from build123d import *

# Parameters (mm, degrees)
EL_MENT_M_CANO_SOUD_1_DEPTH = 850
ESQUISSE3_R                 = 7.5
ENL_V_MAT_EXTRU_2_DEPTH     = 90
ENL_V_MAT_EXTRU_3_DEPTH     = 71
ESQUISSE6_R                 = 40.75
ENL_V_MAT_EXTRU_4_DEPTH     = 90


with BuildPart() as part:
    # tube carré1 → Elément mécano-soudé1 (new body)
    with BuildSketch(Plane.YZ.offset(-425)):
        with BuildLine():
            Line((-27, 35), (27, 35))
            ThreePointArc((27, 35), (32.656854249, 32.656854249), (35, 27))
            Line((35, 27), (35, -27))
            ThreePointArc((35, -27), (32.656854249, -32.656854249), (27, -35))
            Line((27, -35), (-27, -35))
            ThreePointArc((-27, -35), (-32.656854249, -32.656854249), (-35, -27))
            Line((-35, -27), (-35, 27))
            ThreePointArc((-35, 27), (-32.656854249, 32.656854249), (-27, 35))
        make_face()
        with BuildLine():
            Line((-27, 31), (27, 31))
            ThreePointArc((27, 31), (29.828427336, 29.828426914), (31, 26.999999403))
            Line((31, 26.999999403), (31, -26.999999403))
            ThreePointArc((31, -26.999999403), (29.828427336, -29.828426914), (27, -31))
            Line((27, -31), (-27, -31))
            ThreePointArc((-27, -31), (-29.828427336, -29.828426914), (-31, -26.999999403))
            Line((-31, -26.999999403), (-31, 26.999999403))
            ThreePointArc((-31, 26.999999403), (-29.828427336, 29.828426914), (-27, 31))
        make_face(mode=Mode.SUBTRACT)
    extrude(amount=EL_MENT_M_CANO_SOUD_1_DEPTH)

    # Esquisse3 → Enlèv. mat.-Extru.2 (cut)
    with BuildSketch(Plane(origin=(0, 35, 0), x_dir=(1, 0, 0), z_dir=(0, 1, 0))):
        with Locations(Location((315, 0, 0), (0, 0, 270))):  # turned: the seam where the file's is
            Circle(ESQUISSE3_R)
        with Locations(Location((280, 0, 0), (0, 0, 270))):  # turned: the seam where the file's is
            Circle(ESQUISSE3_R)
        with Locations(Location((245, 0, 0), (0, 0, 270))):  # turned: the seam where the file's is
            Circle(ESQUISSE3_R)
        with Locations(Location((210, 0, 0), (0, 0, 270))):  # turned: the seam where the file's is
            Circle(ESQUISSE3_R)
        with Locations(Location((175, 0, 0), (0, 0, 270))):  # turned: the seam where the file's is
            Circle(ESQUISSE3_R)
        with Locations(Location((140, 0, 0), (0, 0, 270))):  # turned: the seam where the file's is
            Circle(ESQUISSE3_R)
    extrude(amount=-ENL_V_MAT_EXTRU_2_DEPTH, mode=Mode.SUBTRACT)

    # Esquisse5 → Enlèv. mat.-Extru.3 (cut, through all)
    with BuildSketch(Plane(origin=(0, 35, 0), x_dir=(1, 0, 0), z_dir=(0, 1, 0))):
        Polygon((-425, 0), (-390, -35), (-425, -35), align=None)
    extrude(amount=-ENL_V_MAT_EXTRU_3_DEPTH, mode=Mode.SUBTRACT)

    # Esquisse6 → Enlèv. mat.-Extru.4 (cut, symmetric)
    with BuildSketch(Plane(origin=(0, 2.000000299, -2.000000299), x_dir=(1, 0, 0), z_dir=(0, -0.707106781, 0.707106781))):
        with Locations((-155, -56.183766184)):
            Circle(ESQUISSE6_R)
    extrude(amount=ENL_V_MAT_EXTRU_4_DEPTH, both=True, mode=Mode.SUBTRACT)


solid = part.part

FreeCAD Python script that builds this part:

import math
import FreeCAD as App
import Part
import Sketcher
Q = App.Units.Quantity

doc = App.newDocument("Part")
params = doc.addObject("Spreadsheet::Sheet", "Params")
for row, (alias, value) in enumerate([
    ("sketch1_radius", "8 mm"),
    ("sketch1_radius2", "4 mm"),
    ("sketch1_width", "54 mm"),
    ("pad1_length", "850 mm"),
    ("sketch2_diameter", "15 mm"),
    ("pocket1_length", "90 mm"),
    ("sketch3_width", "35 mm"),
    ("sketch4_diameter", "81.5 mm"),
    ("pocket3_length", "180 mm"),
], start=1):
    params.set(f"A{row}", alias)
    params.set(f"B{row}", "=" + value)
    params.setAlias(f"B{row}", alias)

body = doc.addObject("PartDesign::Body", "Body")

sketch1 = body.newObject("Sketcher::SketchObject", "Sketch")
sketch1.AttachmentSupport = (doc.getObject("YZ_Plane"), [""])
sketch1.MapMode = "FlatFace"
sketch1.AttachmentOffset = App.Placement(App.Vector(0, 0, -425), App.Rotation())
sketch1.addGeometry([
    Part.LineSegment(App.Vector(27, 35, 0), App.Vector(-27, 35, 0)),
    Part.ArcOfCircle(Part.Circle(App.Vector(-27, 27, 0), App.Vector(0, 0, 1), 8), math.radians(90), math.radians(180)),
    Part.LineSegment(App.Vector(-35, 27, 0), App.Vector(-35, -27, 0)),
    Part.ArcOfCircle(Part.Circle(App.Vector(-27, -27, 0), App.Vector(0, 0, 1), 8), math.radians(-180), math.radians(-90)),
    Part.LineSegment(App.Vector(-27, -35, 0), App.Vector(27, -35, 0)),
    Part.ArcOfCircle(Part.Circle(App.Vector(27, -27, 0), App.Vector(0, 0, 1), 8), math.radians(-90), math.radians(0)),
    Part.LineSegment(App.Vector(35, -27, 0), App.Vector(35, 27, 0)),
    Part.ArcOfCircle(Part.Circle(App.Vector(27, 27, 0), App.Vector(0, 0, 1), 8), math.radians(0), math.radians(90)),
    Part.LineSegment(App.Vector(-27, 31, 0), App.Vector(27, 31, 0)),
    Part.ArcOfCircle(Part.Circle(App.Vector(27, 27, 0), App.Vector(0, 0, 1), 4), math.radians(0), math.radians(90)),
    Part.LineSegment(App.Vector(31, 27, 0), App.Vector(31, -27, 0)),
    Part.ArcOfCircle(Part.Circle(App.Vector(27, -27, 0), App.Vector(0, 0, 1), 4), math.radians(-90), math.radians(0)),
    Part.LineSegment(App.Vector(27, -31, 0), App.Vector(-27, -31, 0)),
    Part.ArcOfCircle(Part.Circle(App.Vector(-27, -27, 0), App.Vector(0, 0, 1), 4), math.radians(180), math.radians(270)),
    Part.LineSegment(App.Vector(-31, -27, 0), App.Vector(-31, 27, 0)),
    Part.ArcOfCircle(Part.Circle(App.Vector(-27, 27, 0), App.Vector(0, 0, 1), 4), math.radians(90), math.radians(180)),
], False)
sketch1.addConstraint([
    Sketcher.Constraint("Tangent", 0, 2, 1, 1),
    Sketcher.Constraint("Tangent", 1, 2, 2, 1),
    Sketcher.Constraint("Tangent", 2, 2, 3, 1),
    Sketcher.Constraint("Tangent", 3, 2, 4, 1),
    Sketcher.Constraint("Tangent", 4, 2, 5, 1),
    Sketcher.Constraint("Tangent", 5, 2, 6, 1),
    Sketcher.Constraint("Tangent", 6, 2, 7, 1),
    Sketcher.Constraint("Tangent", 7, 2, 0, 1),
    Sketcher.Constraint("Tangent", 8, 2, 9, 2),
    Sketcher.Constraint("Tangent", 9, 1, 10, 1),
    Sketcher.Constraint("Tangent", 10, 2, 11, 2),
    Sketcher.Constraint("Tangent", 11, 1, 12, 1),
    Sketcher.Constraint("Tangent", 12, 2, 13, 2),
    Sketcher.Constraint("Tangent", 13, 1, 14, 1),
    Sketcher.Constraint("Tangent", 14, 2, 15, 2),
    Sketcher.Constraint("Tangent", 15, 1, 8, 1),
    Sketcher.Constraint("Horizontal", 0),
    Sketcher.Constraint("Vertical", 2),
    Sketcher.Constraint("Horizontal", 4),
    Sketcher.Constraint("Vertical", 6),
    Sketcher.Constraint("Horizontal", 8),
    Sketcher.Constraint("Vertical", 10),
    Sketcher.Constraint("Horizontal", 12),
    Sketcher.Constraint("Vertical", 14),
    Sketcher.Constraint("Coincident", 9, 3, 7, 3),
    Sketcher.Constraint("Coincident", 11, 3, 5, 3),
    Sketcher.Constraint("Coincident", 13, 3, 3, 3),
    Sketcher.Constraint("Equal", 1, 3),
    Sketcher.Constraint("Equal", 3, 5),
    Sketcher.Constraint("Equal", 5, 7),
    Sketcher.Constraint("Equal", 13, 15),
    Sketcher.Constraint("Symmetric", 1, 3, 5, 3, -1, 1),
    Sketcher.Constraint("Equal", 12, 2),
    Sketcher.Constraint("Radius", 1, Q("8 mm")),
    Sketcher.Constraint("Radius", 9, Q("4 mm")),
    Sketcher.Constraint("DistanceX", 0, 2, 0, 1, Q("54 mm")),
])
sketch1.setExpression("Constraints[33]", "Params.sketch1_radius")
sketch1.setExpression("Constraints[34]", "Params.sketch1_radius2")
sketch1.setExpression("Constraints[35]", "Params.sketch1_width")
pad1 = body.newObject("PartDesign::Pad", "Pad")
pad1.Profile = sketch1
pad1.setExpression("Length", "Params.pad1_length")

sketch2 = body.newObject("Sketcher::SketchObject", "Sketch001")
sketch2.AttachmentSupport = (doc.getObject("XZ_Plane"), [""])
sketch2.MapMode = "FlatFace"
sketch2.AttachmentOffset = App.Placement(App.Vector(0, 0, -35), App.Rotation())
sketch2.addGeometry([
    Part.Circle(App.Vector(315, 0, 0), App.Vector(0, 0, 1), 8),
    Part.Circle(App.Vector(280, 0, 0), App.Vector(0, 0, 1), 8),
    Part.Circle(App.Vector(245, 0, 0), App.Vector(0, 0, 1), 8),
    Part.Circle(App.Vector(210, 0, 0), App.Vector(0, 0, 1), 8),
    Part.Circle(App.Vector(175, 0, 0), App.Vector(0, 0, 1), 8),
    Part.Circle(App.Vector(140, 0, 0), App.Vector(0, 0, 1), 8),
], False)
sketch2.addConstraint([
    Sketcher.Constraint("Equal", 0, 1),
    Sketcher.Constraint("Equal", 1, 2),
    Sketcher.Constraint("Equal", 2, 3),
    Sketcher.Constraint("Equal", 3, 4),
    Sketcher.Constraint("Equal", 4, 5),
    Sketcher.Constraint("PointOnObject", 0, 3, -1),
    Sketcher.Constraint("PointOnObject", 1, 3, -1),
    Sketcher.Constraint("PointOnObject", 2, 3, -1),
    Sketcher.Constraint("PointOnObject", 3, 3, -1),
    Sketcher.Constraint("PointOnObject", 4, 3, -1),
    Sketcher.Constraint("PointOnObject", 5, 3, -1),
    Sketcher.Constraint("Diameter", 0, Q("15 mm")),
    Sketcher.Constraint("DistanceX", -1, 1, 0, 3, Q("315 mm")),
    Sketcher.Constraint("DistanceX", -1, 1, 1, 3, Q("280 mm")),
    Sketcher.Constraint("DistanceX", -1, 1, 2, 3, Q("245 mm")),
    Sketcher.Constraint("DistanceX", -1, 1, 3, 3, Q("210 mm")),
    Sketcher.Constraint("DistanceX", -1, 1, 4, 3, Q("175 mm")),
    Sketcher.Constraint("DistanceX", -1, 1, 5, 3, Q("140 mm")),
])
sketch2.setExpression("Constraints[11]", "Params.sketch2_diameter")
pocket1 = body.newObject("PartDesign::Pocket", "Pocket")
pocket1.Profile = sketch2
pocket1.setExpression("Length", "Params.pocket1_length")
pocket1.Reversed = True

sketch3 = body.newObject("Sketcher::SketchObject", "Sketch002")
sketch3.AttachmentSupport = (doc.getObject("XZ_Plane"), [""])
sketch3.MapMode = "FlatFace"
sketch3.AttachmentOffset = App.Placement(App.Vector(0, 0, -35), App.Rotation())
sketch3.addGeometry([
    Part.LineSegment(App.Vector(-390, 35, 0), App.Vector(-425, 0, 0)),
    Part.LineSegment(App.Vector(-425, 0, 0), App.Vector(-425, 35, 0)),
    Part.LineSegment(App.Vector(-425, 35, 0), App.Vector(-390, 35, 0)),
], False)
sketch3.addConstraint([
    Sketcher.Constraint("Coincident", 0, 2, 1, 1),
    Sketcher.Constraint("Coincident", 1, 2, 2, 1),
    Sketcher.Constraint("Coincident", 2, 2, 0, 1),
    Sketcher.Constraint("Vertical", 1),
    Sketcher.Constraint("Horizontal", 2),
    Sketcher.Constraint("PointOnObject", 0, 2, -1),
    Sketcher.Constraint("Equal", 2, 1),
    Sketcher.Constraint("DistanceX", 2, 1, 2, 2, Q("35 mm")),
    Sketcher.Constraint("DistanceX", 0, 2, -1, 1, Q("425 mm")),
])
sketch3.setExpression("Constraints[7]", "Params.sketch3_width")
pocket2 = body.newObject("PartDesign::Pocket", "Pocket001")
pocket2.Profile = sketch3
pocket2.Type = "ThroughAll"
pocket2.Reversed = True

sketch4 = body.newObject("Sketcher::SketchObject", "Sketch003")
sketch4.Placement = App.Placement(App.Vector(0, 2, -2), App.Rotation(App.Vector(1, 0, 0), App.Vector(0, 0.707106781, 0.707106781), App.Vector(0, -0.707106781, 0.707106781), "ZXY"))
sketch4.addGeometry(Part.Circle(App.Vector(-155, -56, 0), App.Vector(0, 0, 1), 41), False)
sketch4.addConstraint([
    Sketcher.Constraint("Diameter", 0, Q("81.5 mm")),
    Sketcher.Constraint("DistanceX", 0, 3, -1, 1, Q("155 mm")),
    Sketcher.Constraint("DistanceY", 0, 3, -1, 1, Q("56.183766 mm")),
])
sketch4.setExpression("Constraints[0]", "Params.sketch4_diameter")
pocket3 = body.newObject("PartDesign::Pocket", "Pocket002")
pocket3.Profile = sketch4
pocket3.setExpression("Length", "Params.pocket3_length")
pocket3.Midplane = True

doc.recompute()
